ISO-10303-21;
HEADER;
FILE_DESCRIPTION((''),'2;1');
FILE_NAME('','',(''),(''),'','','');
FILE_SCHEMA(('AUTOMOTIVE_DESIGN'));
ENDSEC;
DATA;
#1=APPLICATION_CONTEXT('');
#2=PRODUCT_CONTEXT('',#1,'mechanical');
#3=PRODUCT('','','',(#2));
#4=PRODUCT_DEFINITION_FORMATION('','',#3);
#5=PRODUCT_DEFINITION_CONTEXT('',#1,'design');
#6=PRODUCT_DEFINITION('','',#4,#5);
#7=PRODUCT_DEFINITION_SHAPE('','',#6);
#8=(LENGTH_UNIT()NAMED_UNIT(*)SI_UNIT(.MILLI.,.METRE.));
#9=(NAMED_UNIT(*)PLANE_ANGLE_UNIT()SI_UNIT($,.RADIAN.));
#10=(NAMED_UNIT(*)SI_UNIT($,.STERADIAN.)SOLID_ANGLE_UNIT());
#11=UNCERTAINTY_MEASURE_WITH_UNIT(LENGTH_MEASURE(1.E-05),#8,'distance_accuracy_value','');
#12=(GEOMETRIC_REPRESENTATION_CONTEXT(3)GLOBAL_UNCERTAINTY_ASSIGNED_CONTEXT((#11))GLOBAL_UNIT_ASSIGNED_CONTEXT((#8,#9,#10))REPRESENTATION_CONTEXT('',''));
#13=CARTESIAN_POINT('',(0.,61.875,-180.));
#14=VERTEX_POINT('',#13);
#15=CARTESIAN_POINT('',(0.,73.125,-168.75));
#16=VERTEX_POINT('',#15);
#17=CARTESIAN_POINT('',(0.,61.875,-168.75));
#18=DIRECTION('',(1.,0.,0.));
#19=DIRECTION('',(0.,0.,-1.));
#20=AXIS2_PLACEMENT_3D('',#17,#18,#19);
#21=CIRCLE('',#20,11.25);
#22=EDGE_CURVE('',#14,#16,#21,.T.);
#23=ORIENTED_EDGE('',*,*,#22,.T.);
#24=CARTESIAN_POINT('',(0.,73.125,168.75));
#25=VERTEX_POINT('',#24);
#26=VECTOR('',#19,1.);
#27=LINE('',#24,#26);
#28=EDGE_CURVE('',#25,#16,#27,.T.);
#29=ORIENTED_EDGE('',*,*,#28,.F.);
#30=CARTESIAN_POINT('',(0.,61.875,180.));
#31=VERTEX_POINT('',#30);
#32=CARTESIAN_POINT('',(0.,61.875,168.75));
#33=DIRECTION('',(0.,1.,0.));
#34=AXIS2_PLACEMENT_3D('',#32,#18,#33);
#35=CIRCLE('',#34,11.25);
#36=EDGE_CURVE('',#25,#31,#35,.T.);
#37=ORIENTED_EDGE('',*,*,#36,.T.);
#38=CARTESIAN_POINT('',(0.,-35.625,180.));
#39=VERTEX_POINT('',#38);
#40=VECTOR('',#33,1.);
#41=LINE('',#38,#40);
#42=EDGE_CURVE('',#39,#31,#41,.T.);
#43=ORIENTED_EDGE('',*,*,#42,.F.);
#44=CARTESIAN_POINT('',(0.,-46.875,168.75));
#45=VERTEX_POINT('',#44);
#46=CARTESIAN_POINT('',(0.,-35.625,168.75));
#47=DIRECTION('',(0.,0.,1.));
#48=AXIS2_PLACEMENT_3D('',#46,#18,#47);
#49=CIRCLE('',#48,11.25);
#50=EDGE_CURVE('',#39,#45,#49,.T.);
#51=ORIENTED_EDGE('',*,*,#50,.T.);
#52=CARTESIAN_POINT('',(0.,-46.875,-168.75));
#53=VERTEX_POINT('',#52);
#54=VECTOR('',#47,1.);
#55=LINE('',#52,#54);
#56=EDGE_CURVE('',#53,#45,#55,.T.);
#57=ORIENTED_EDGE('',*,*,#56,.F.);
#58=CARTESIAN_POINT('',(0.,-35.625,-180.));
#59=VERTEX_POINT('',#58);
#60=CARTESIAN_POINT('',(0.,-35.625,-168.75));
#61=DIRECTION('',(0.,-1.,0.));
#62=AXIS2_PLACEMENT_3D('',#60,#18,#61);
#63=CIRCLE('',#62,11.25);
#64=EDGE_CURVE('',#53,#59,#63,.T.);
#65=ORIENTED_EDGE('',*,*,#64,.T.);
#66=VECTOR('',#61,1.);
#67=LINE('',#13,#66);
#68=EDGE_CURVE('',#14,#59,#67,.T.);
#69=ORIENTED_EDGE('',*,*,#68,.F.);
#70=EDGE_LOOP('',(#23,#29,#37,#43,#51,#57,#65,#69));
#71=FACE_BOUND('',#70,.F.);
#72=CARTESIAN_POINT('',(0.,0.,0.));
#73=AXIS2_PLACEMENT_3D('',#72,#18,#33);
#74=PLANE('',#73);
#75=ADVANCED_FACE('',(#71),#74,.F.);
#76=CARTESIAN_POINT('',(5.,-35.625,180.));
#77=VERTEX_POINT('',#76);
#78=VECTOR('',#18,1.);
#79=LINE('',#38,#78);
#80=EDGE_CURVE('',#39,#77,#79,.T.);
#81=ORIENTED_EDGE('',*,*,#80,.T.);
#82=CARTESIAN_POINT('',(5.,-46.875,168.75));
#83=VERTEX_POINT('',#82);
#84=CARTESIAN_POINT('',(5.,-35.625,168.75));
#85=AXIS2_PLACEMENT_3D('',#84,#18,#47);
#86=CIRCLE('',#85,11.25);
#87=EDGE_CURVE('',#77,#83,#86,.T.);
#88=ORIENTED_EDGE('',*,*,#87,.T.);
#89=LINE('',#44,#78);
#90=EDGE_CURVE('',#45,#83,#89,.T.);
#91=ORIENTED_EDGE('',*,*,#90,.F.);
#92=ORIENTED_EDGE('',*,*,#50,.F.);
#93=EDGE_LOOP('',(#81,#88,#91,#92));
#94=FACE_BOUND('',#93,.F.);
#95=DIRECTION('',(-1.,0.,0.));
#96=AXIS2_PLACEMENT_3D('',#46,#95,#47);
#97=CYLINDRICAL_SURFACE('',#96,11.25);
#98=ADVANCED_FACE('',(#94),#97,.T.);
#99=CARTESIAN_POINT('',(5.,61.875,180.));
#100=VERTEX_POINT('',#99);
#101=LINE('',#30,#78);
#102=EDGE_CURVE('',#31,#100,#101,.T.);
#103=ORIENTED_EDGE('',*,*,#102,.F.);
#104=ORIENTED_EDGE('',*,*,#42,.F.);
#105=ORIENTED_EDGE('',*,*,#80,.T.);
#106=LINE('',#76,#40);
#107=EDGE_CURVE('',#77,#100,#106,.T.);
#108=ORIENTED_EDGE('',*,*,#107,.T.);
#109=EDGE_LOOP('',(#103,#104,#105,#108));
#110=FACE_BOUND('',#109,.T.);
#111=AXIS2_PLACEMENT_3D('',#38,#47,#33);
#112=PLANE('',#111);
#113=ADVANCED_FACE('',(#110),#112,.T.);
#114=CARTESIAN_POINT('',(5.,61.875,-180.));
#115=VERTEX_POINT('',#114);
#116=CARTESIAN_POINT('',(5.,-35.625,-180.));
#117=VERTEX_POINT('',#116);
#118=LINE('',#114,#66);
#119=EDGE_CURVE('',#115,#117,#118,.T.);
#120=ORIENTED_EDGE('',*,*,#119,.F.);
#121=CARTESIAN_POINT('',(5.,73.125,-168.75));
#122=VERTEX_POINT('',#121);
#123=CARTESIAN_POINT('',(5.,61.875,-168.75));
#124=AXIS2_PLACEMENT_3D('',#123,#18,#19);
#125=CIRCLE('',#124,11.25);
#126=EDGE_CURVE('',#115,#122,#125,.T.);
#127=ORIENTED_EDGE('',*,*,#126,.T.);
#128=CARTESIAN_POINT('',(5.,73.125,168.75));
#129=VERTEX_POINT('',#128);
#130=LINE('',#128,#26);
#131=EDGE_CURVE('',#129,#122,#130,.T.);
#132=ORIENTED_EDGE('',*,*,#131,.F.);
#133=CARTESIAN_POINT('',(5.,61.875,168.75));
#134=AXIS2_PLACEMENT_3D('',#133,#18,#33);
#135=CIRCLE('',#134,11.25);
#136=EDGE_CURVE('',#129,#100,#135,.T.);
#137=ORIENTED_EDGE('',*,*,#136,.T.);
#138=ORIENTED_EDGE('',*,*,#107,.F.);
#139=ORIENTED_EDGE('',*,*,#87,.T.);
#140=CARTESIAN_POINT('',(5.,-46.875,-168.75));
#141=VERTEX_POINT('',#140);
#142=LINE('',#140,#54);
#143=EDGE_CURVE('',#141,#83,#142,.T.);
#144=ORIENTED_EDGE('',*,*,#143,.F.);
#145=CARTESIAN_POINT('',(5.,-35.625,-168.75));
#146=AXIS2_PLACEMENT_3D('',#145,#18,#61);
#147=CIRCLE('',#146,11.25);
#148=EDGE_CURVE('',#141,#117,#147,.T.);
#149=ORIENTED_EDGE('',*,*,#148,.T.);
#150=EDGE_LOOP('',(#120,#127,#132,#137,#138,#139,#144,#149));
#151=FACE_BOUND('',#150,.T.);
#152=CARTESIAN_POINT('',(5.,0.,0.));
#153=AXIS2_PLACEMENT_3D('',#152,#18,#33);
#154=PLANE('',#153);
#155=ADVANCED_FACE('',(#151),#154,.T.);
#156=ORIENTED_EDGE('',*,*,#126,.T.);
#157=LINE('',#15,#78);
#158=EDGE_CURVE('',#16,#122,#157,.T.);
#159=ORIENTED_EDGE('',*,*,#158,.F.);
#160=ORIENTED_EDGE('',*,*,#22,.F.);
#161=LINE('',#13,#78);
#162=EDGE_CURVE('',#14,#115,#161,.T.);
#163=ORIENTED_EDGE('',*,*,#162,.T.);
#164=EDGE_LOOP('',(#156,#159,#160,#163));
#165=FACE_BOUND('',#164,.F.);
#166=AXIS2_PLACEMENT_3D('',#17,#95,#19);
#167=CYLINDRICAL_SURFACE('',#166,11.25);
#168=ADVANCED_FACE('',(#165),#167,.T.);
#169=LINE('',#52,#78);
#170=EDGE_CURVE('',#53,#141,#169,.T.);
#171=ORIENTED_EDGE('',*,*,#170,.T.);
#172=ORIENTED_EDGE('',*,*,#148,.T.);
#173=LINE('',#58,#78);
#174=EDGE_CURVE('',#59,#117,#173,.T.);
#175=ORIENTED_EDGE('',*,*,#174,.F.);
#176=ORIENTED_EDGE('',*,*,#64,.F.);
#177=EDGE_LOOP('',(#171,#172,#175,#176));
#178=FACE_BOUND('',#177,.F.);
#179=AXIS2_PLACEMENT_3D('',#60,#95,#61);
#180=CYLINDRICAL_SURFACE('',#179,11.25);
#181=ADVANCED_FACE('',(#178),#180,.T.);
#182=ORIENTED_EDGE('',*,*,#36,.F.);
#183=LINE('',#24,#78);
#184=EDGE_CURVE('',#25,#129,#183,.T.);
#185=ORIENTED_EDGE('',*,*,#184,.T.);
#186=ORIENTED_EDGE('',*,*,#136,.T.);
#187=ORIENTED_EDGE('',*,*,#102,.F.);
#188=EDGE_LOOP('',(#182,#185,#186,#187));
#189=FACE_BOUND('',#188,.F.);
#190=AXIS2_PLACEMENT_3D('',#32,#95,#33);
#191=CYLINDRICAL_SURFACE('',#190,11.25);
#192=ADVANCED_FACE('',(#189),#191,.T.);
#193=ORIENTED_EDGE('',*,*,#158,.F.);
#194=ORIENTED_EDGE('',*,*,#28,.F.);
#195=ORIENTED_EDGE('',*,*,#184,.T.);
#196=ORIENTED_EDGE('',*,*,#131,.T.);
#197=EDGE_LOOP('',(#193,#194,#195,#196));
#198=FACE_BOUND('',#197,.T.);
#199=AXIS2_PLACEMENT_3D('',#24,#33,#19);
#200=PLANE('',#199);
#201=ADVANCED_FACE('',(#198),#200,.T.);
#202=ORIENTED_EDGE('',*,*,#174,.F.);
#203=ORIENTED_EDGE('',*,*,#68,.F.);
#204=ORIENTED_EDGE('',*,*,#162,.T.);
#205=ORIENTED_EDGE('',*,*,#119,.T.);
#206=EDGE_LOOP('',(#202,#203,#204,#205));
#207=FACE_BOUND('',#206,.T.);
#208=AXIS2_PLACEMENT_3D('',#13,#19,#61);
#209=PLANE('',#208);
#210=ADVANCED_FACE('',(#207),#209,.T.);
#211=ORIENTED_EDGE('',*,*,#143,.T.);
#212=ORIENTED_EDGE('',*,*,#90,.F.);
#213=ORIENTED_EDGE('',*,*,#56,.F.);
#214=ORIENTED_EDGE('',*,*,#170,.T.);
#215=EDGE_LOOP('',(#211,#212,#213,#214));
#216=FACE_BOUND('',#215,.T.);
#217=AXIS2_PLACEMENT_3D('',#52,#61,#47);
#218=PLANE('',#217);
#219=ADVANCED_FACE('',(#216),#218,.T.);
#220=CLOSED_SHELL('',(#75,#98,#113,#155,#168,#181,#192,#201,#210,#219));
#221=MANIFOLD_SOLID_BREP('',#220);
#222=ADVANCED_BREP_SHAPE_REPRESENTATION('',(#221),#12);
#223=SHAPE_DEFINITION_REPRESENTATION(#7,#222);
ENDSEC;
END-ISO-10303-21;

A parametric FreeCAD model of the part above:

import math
import FreeCAD as App
import Part
import Sketcher

V = App.Vector

doc = App.newDocument("Part")
body = doc.addObject("PartDesign::Body", "Body")

sketch1 = body.newObject("Sketcher::SketchObject", "Sketch")
sketch1.AttachmentSupport = (doc.getObject("YZ_Plane"), [""])
sketch1.MapMode = "FlatFace"
sketch1.addGeometry(Part.LineSegment(V(62, 180, 0), V(-36, 180, 0)), False)
sketch1.addGeometry(Part.ArcOfCircle(Part.Circle(V(-36, 169, 0), V(0, 0, 1), 11), math.radians(90), math.radians(180)), False)
sketch1.addGeometry(Part.LineSegment(V(-47, 169, 0), V(-47, -169, 0)), False)
sketch1.addGeometry(Part.ArcOfCircle(Part.Circle(V(-36, -169, 0), V(0, 0, 1), 11), math.radians(180), math.radians(270)), False)
sketch1.addGeometry(Part.LineSegment(V(-36, -180, 0), V(62, -180, 0)), False)
sketch1.addGeometry(Part.ArcOfCircle(Part.Circle(V(62, -169, 0), V(0, 0, 1), 11), math.radians(-90), math.radians(0)), False)
sketch1.addGeometry(Part.LineSegment(V(73, -169, 0), V(73, 169, 0)), False)
sketch1.addGeometry(Part.ArcOfCircle(Part.Circle(V(62, 169, 0), V(0, 0, 1), 11), math.radians(0), math.radians(90)), False)
sketch1.addConstraint(Sketcher.Constraint("Tangent", 0, 2, 1, 1))
sketch1.addConstraint(Sketcher.Constraint("Tangent", 1, 2, 2, 1))
sketch1.addConstraint(Sketcher.Constraint("Tangent", 2, 2, 3, 1))
sketch1.addConstraint(Sketcher.Constraint("Tangent", 3, 2, 4, 1))
sketch1.addConstraint(Sketcher.Constraint("Tangent", 4, 2, 5, 1))
sketch1.addConstraint(Sketcher.Constraint("Tangent", 5, 2, 6, 1))
sketch1.addConstraint(Sketcher.Constraint("Tangent", 6, 2, 7, 1))
sketch1.addConstraint(Sketcher.Constraint("Tangent", 7, 2, 0, 1))
sketch1.addConstraint(Sketcher.Constraint("Horizontal", 0))
sketch1.addConstraint(Sketcher.Constraint("Vertical", 2))
sketch1.addConstraint(Sketcher.Constraint("Horizontal", 4))
sketch1.addConstraint(Sketcher.Constraint("Vertical", 6))
sketch1.addConstraint(Sketcher.Constraint("Equal", 1, 3))
sketch1.addConstraint(Sketcher.Constraint("Equal", 3, 5))
sketch1.addConstraint(Sketcher.Constraint("Equal", 5, 7))
sketch1.addConstraint(Sketcher.Constraint("DistanceX", 2, 2, 5, 2, 120.0))
sketch1.addConstraint(Sketcher.Constraint("Radius", 1, 11.25))
sketch1.addConstraint(Sketcher.Constraint("DistanceY", 2, 2, 2, 1, 337.5))
sketch1.addConstraint(Sketcher.Constraint("DistanceY", -1, 1, 0, 2, 180.0))
sketch1.addConstraint(Sketcher.Constraint("DistanceX", 1, 3, -1, 1, 35.625))
pad1 = body.newObject("PartDesign::Pad", "Pad")
pad1.Profile = sketch1
pad1.Length = 5

doc.recompute()
